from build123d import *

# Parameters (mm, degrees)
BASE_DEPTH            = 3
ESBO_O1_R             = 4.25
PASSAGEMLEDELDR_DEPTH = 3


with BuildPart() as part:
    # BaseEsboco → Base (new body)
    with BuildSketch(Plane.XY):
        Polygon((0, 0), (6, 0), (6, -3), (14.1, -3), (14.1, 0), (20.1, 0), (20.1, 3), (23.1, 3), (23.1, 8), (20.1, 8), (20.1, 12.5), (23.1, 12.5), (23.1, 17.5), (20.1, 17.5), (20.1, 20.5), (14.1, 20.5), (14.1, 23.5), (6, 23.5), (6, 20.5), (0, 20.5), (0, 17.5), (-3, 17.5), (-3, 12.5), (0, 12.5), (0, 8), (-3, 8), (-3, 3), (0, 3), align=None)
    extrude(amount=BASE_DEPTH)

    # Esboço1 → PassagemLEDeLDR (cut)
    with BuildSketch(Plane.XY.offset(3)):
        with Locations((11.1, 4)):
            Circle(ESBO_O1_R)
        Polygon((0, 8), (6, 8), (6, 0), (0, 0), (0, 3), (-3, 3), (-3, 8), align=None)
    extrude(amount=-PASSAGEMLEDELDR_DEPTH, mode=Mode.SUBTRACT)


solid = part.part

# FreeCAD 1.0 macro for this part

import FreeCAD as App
import Part
import Sketcher
from FreeCAD import Vector

doc = App.newDocument("Part")
body = doc.addObject("PartDesign::Body", "Body")

sketch1 = doc.addObject("Sketcher::SketchObject", "Sketch")
body.addObject(sketch1)
sketch1.AttachmentSupport = (doc.XY_Plane, [""])
sketch1.MapMode = "FlatFace"
sketch1.addGeometry([
    Part.LineSegment(Vector(0, 0, 0), Vector(6, 0, 0)),
    Part.LineSegment(Vector(6, 0, 0), Vector(6, -3, 0)),
    Part.LineSegment(Vector(6, -3, 0), Vector(14.1, -3, 0)),
    Part.LineSegment(Vector(14.1, -3, 0), Vector(14.1, 0, 0)),
    Part.LineSegment(Vector(14.1, 0, 0), Vector(20.1, 0, 0)),
    Part.LineSegment(Vector(20.1, 0, 0), Vector(20.1, 3, 0)),
    Part.LineSegment(Vector(20.1, 3, 0), Vector(23.1, 3, 0)),
    Part.LineSegment(Vector(23.1, 3, 0), Vector(23.1, 8, 0)),
    Part.LineSegment(Vector(23.1, 8, 0), Vector(20.1, 8, 0)),
    Part.LineSegment(Vector(20.1, 8, 0), Vector(20.1, 12.5, 0)),
    Part.LineSegment(Vector(20.1, 12.5, 0), Vector(23.1, 12.5, 0)),
    Part.LineSegment(Vector(23.1, 12.5, 0), Vector(23.1, 17.5, 0)),
    Part.LineSegment(Vector(23.1, 17.5, 0), Vector(20.1, 17.5, 0)),
    Part.LineSegment(Vector(20.1, 17.5, 0), Vector(20.1, 20.5, 0)),
    Part.LineSegment(Vector(20.1, 20.5, 0), Vector(14.1, 20.5, 0)),
    Part.LineSegment(Vector(14.1, 20.5, 0), Vector(14.1, 23.5, 0)),
    Part.LineSegment(Vector(14.1, 23.5, 0), Vector(6, 23.5, 0)),
    Part.LineSegment(Vector(6, 23.5, 0), Vector(6, 20.5, 0)),
    Part.LineSegment(Vector(6, 20.5, 0), Vector(0, 20.5, 0)),
    Part.LineSegment(Vector(0, 20.5, 0), Vector(0, 17.5, 0)),
    Part.LineSegment(Vector(0, 17.5, 0), Vector(-3, 17.5, 0)),
    Part.LineSegment(Vector(-3, 17.5, 0), Vector(-3, 12.5, 0)),
    Part.LineSegment(Vector(-3, 12.5, 0), Vector(0, 12.5, 0)),
    Part.LineSegment(Vector(0, 12.5, 0), Vector(0, 8, 0)),
    Part.LineSegment(Vector(0, 8, 0), Vector(-3, 8, 0)),
    Part.LineSegment(Vector(-3, 8, 0), Vector(-3, 3, 0)),
    Part.LineSegment(Vector(-3, 3, 0), Vector(0, 3, 0)),
    Part.LineSegment(Vector(0, 3, 0), Vector(0, 0, 0)),
], False)
sketch1.addConstraint([
    Sketcher.Constraint("Coincident", 0, 2, 1, 1),
    Sketcher.Constraint("Coincident", 1, 2, 2, 1),
    Sketcher.Constraint("Coincident", 2, 2, 3, 1),
    Sketcher.Constraint("Coincident", 3, 2, 4, 1),
    Sketcher.Constraint("Coincident", 4, 2, 5, 1),
    Sketcher.Constraint("Coincident", 5, 2, 6, 1),
    Sketcher.Constraint("Coincident", 6, 2, 7, 1),
    Sketcher.Constraint("Coincident", 7, 2, 8, 1),
    Sketcher.Constraint("Coincident", 8, 2, 9, 1),
    Sketcher.Constraint("Coincident", 9, 2, 10, 1),
    Sketcher.Constraint("Coincident", 10, 2, 11, 1),
    Sketcher.Constraint("Coincident", 11, 2, 12, 1),
    Sketcher.Constraint("Coincident", 12, 2, 13, 1),
    Sketcher.Constraint("Coincident", 13, 2, 14, 1),
    Sketcher.Constraint("Coincident", 14, 2, 15, 1),
    Sketcher.Constraint("Coincident", 15, 2, 16, 1),
    Sketcher.Constraint("Coincident", 16, 2, 17, 1),
    Sketcher.Constraint("Coincident", 17, 2, 18, 1),
    Sketcher.Constraint("Coincident", 18, 2, 19, 1),
    Sketcher.Constraint("Coincident", 19, 2, 20, 1),
    Sketcher.Constraint("Coincident", 20, 2, 21, 1),
    Sketcher.Constraint("Coincident", 21, 2, 22, 1),
    Sketcher.Constraint("Coincident", 22, 2, 23, 1),
    Sketcher.Constraint("Coincident", 23, 2, 24, 1),
    Sketcher.Constraint("Coincident", 24, 2, 25, 1),
    Sketcher.Constraint("Coincident", 25, 2, 26, 1),
    Sketcher.Constraint("Coincident", 26, 2, 27, 1),
    Sketcher.Constraint("Coincident", 27, 2, 0, 1),
    Sketcher.Constraint("Horizontal", 0),
    Sketcher.Constraint("Vertical", 1),
    Sketcher.Constraint("Horizontal", 2),
    Sketcher.Constraint("Vertical", 3),
    Sketcher.Constraint("Horizontal", 4),
    Sketcher.Constraint("Vertical", 5),
    Sketcher.Constraint("Horizontal", 6),
    Sketcher.Constraint("Vertical", 7),
    Sketcher.Constraint("Horizontal", 8),
    Sketcher.Constraint("Vertical", 9),
    Sketcher.Constraint("Horizontal", 10),
    Sketcher.Constraint("Vertical", 11),
    Sketcher.Constraint("Horizontal", 12),
    Sketcher.Constraint("Vertical", 13),
    Sketcher.Constraint("Horizontal", 14),
    Sketcher.Constraint("Vertical", 15),
    Sketcher.Constraint("Horizontal", 16),
    Sketcher.Constraint("Vertical", 17),
    Sketcher.Constraint("Horizontal", 18),
    Sketcher.Constraint("Vertical", 19),
    Sketcher.Constraint("Horizontal", 20),
    Sketcher.Constraint("Vertical", 21),
    Sketcher.Constraint("Horizontal", 22),
    Sketcher.Constraint("Vertical", 23),
    Sketcher.Constraint("Horizontal", 24),
    Sketcher.Constraint("Vertical", 25),
    Sketcher.Constraint("Horizontal", 26),
    Sketcher.Constraint("Vertical", 27),
    Sketcher.Constraint("Coincident", 27, 2, -1, 1),
    Sketcher.Constraint("PointOnObject", 3, 2, -1),
    Sketcher.Constraint("PointOnObject", 18, 2, -2),
    Sketcher.Constraint("PointOnObject", 22, 2, -2),
    Sketcher.Constraint("Horizontal", 14, 2, 17, 2),
    Sketcher.Constraint("Horizontal", 12, 2, 19, 2),
    Sketcher.Constraint("Horizontal", 10, 2, 21, 2),
    Sketcher.Constraint("Horizontal", 8, 2, 23, 2),
    Sketcher.Constraint("Horizontal", 6, 2, 25, 2),
    Sketcher.Constraint("Vertical", 5, 2, 8, 2),
    Sketcher.Constraint("Vertical", 7, 2, 10, 2),
    Sketcher.Constraint("Vertical", 9, 2, 12, 2),
    Sketcher.Constraint("Vertical", 3, 2, 14, 2),
    Sketcher.Constraint("Vertical", 1, 2, 16, 2),
    Sketcher.Constraint("Vertical", 21, 2, 24, 2),
    Sketcher.Constraint("Equal", 0, 4),
    Sketcher.Constraint("Equal", 12, 20),
    Sketcher.Constraint("Equal", 26, 1),
    Sketcher.Constraint("Equal", 3, 5),
    Sketcher.Constraint("Equal", 7, 11),
    Sketcher.Constraint("Equal", 5, 13),
    Sketcher.Constraint("Equal", 13, 15),
    Sketcher.Constraint("DistanceX", 0, 1, 0, 2, 6.0),
    Sketcher.Constraint("DistanceX", 6, 1, 6, 2, 3.0),
    Sketcher.Constraint("DistanceY", 7, 1, 7, 2, 5.0),
    Sketcher.Constraint("DistanceX", 2, 1, 2, 2, 8.1),
    Sketcher.Constraint("DistanceY", 9, 1, 9, 2, 4.5),
])
pad1 = doc.addObject("PartDesign::Pad", "Pad")
body.addObject(pad1)
pad1.Profile = sketch1
pad1.Length = 3

sketch2 = doc.addObject("Sketcher::SketchObject", "Sketch001")
body.addObject(sketch2)
sketch2.AttachmentSupport = (doc.XY_Plane, [""])
sketch2.MapMode = "FlatFace"
sketch2.AttachmentOffset = App.Placement(Vector(0, 0, 3), App.Rotation())
sketch2.addGeometry([
    Part.Circle(Vector(11.1, 4, 0), Vector(0, 0, 1), 4.2),
    Part.LineSegment(Vector(6, 8, 0), Vector(-3, 8, 0)),
    Part.LineSegment(Vector(-3, 8, 0), Vector(-3, 3, 0)),
    Part.LineSegment(Vector(-3, 3, 0), Vector(0, 3, 0)),
    Part.LineSegment(Vector(0, 3, 0), Vector(0, 0, 0)),
    Part.LineSegment(Vector(0, 0, 0), Vector(6, 0, 0)),
    Part.LineSegment(Vector(6, 0, 0), Vector(6, 8, 0)),
], False)
sketch2.addConstraint([
    Sketcher.Constraint("Coincident", 1, 2, 2, 1),
    Sketcher.Constraint("Coincident", 2, 2, 3, 1),
    Sketcher.Constraint("Coincident", 3, 2, 4, 1),
    Sketcher.Constraint("Coincident", 4, 2, 5, 1),
    Sketcher.Constraint("Coincident", 5, 2, 6, 1),
    Sketcher.Constraint("Coincident", 6, 2, 1, 1),
    Sketcher.Constraint("Horizontal", 1),
    Sketcher.Constraint("Vertical", 2),
    Sketcher.Constraint("Horizontal", 3),
    Sketcher.Constraint("Vertical", 4),
    Sketcher.Constraint("Horizontal", 5),
    Sketcher.Constraint("Vertical", 6),
    Sketcher.Constraint("Coincident", 4, 2, -1, 1),
    Sketcher.Constraint("Equal", 3, 4),
    Sketcher.Constraint("Diameter", 0, 8.5),
    Sketcher.Constraint("DistanceX", 1, 2, 1, 1, 9.0),
    Sketcher.Constraint("DistanceX", 3, 1, 3, 2, 3.0),
    Sketcher.Constraint("DistanceY", 2, 2, 2, 1, 5.0),
    Sketcher.Constraint("DistanceY", -1, 1, 0, 3, 4.0),
    Sketcher.Constraint("DistanceX", -1, 1, 0, 3, 11.1),
])
pocket1 = doc.addObject("PartDesign::Pocket", "Pocket")
body.addObject(pocket1)
pocket1.Profile = sketch2
pocket1.Length = 3

doc.recompute()
